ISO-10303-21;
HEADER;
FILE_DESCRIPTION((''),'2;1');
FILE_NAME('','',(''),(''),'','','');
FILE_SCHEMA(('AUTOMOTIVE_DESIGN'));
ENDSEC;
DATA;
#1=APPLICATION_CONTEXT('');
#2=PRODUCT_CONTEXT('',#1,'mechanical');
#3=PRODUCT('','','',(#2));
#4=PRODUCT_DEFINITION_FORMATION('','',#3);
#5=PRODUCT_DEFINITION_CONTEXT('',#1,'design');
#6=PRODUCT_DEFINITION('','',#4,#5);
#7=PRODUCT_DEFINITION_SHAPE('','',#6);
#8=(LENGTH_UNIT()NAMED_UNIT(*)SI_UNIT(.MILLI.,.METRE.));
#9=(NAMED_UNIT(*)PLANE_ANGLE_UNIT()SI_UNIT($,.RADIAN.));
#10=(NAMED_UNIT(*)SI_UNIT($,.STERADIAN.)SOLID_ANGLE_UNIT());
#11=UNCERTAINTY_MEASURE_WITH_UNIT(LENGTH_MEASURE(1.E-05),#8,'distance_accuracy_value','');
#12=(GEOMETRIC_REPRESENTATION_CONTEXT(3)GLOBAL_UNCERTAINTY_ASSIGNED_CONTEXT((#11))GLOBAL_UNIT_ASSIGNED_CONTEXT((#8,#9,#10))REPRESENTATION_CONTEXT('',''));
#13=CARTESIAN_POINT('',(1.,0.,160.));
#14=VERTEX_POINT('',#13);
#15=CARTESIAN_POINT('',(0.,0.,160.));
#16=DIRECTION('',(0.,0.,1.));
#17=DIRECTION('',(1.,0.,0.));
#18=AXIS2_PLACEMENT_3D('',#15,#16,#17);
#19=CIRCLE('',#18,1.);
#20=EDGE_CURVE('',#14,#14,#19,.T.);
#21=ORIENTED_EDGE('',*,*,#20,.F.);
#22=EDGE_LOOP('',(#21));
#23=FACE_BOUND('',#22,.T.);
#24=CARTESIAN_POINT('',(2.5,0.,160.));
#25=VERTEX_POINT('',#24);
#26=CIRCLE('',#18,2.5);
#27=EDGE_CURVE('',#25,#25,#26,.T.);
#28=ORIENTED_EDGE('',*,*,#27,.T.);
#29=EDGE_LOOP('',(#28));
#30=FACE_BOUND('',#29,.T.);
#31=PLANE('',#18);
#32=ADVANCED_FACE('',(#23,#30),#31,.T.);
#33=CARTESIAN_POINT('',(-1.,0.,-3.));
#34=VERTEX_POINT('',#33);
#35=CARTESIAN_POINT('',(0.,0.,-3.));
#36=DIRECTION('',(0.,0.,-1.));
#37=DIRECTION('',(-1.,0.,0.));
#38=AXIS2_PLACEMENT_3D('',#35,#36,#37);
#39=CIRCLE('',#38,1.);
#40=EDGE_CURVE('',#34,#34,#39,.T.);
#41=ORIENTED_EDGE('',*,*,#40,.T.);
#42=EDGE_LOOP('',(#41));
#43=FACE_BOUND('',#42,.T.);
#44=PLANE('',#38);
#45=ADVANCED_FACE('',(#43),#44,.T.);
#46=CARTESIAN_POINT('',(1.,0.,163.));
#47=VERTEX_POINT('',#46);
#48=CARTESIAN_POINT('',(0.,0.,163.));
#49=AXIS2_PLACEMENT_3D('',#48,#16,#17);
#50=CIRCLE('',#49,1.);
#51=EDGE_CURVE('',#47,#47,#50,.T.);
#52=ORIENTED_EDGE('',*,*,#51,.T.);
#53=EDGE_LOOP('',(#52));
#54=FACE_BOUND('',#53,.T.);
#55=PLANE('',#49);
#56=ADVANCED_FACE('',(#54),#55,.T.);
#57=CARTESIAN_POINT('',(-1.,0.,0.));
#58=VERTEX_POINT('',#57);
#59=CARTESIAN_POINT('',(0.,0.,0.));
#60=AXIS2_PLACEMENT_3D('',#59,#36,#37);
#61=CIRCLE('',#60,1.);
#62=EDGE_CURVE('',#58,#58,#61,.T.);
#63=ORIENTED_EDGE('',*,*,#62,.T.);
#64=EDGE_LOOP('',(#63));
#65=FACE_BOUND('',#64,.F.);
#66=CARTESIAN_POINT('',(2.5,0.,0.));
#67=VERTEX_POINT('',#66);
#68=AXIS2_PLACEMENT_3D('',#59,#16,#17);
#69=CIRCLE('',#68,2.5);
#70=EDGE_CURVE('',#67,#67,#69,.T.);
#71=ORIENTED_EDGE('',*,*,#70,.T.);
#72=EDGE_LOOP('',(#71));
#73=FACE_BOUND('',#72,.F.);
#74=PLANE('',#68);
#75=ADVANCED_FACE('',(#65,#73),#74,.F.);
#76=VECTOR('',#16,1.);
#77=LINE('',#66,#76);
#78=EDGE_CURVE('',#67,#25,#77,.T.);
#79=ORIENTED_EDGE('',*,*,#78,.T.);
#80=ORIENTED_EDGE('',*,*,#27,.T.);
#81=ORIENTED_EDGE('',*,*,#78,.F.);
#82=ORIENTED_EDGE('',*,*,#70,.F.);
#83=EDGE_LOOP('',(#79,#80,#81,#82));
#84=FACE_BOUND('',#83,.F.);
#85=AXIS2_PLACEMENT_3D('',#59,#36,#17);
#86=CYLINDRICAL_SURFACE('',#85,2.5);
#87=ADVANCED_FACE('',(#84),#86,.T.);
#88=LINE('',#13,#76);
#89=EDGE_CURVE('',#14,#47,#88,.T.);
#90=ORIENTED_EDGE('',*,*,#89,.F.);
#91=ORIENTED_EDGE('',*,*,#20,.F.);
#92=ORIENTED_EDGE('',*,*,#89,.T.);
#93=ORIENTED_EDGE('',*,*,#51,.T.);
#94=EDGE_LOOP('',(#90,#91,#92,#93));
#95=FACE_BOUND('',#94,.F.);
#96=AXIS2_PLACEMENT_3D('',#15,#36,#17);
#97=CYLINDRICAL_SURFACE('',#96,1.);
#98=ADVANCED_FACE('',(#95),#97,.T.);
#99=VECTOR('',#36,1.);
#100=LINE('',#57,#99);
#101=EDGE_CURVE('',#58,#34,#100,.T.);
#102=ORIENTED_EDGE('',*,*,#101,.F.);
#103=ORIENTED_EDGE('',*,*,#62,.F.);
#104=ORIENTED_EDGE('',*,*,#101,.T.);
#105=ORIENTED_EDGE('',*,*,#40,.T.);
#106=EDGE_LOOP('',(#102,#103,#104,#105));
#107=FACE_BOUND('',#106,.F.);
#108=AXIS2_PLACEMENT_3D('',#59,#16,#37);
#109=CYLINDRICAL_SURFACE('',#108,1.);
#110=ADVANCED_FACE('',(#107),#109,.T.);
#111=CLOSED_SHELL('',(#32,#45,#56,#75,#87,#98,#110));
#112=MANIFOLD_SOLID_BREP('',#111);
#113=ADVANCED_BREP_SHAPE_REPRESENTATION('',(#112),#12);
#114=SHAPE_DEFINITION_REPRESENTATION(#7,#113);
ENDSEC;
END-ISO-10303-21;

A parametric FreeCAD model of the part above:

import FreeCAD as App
import Part
import Sketcher
Q = App.Units.Quantity

doc = App.newDocument("Part")
params = doc.addObject("Spreadsheet::Sheet", "Params")
for row, (alias, value) in enumerate([
    ("sketch1_diameter", "5 mm"),
    ("pad1_length", "160 mm"),
    ("sketch2_diameter", "2 mm"),
    ("pad2_length", "3 mm"),
    ("sketch3_diameter", "2 mm"),
    ("pad3_length", "3 mm"),
], start=1):
    params.set(f"A{row}", alias)
    params.set(f"B{row}", "=" + value)
    params.setAlias(f"B{row}", alias)

body = doc.addObject("PartDesign::Body", "Body")

sketch1 = body.newObject("Sketcher::SketchObject", "Sketch")
sketch1.AttachmentSupport = (doc.getObject("XY_Plane"), [""])
sketch1.MapMode = "FlatFace"
sketch1.addGeometry(Part.Circle(App.Vector(0, 0, 0), App.Vector(0, 0, 1), 2.5), False)
sketch1.addConstraint(Sketcher.Constraint("Coincident", 0, 3, -1, 1))
sketch1.addConstraint(Sketcher.Constraint("Diameter", 0, Q("5 mm")))
sketch1.setExpression("Constraints[1]", "Params.sketch1_diameter")
pad1 = body.newObject("PartDesign::Pad", "Pad")
pad1.Profile = sketch1
pad1.setExpression("Length", "Params.pad1_length")

sketch2 = body.newObject("Sketcher::SketchObject", "Sketch001")
sketch2.AttachmentSupport = (doc.getObject("XY_Plane"), [""])
sketch2.MapMode = "FlatFace"
sketch2.AttachmentOffset = App.Placement(App.Vector(0, 0, 160), App.Rotation())
sketch2.addGeometry(Part.Circle(App.Vector(0, 0, 0), App.Vector(0, 0, 1), 1), False)
sketch2.addConstraint(Sketcher.Constraint("Coincident", 0, 3, -1, 1))
sketch2.addConstraint(Sketcher.Constraint("Diameter", 0, Q("2 mm")))
sketch2.setExpression("Constraints[1]", "Params.sketch2_diameter")
pad2 = body.newObject("PartDesign::Pad", "Pad001")
pad2.Profile = sketch2
pad2.setExpression("Length", "Params.pad2_length")

sketch3 = body.newObject("Sketcher::SketchObject", "Sketch002")
sketch3.AttachmentSupport = (doc.getObject("XY_Plane"), [""])
sketch3.MapMode = "FlatFace"
sketch3.addGeometry(Part.Circle(App.Vector(0, 0, 0), App.Vector(0, 0, 1), 1), False)
sketch3.addConstraint(Sketcher.Constraint("Coincident", 0, 3, -1, 1))
sketch3.addConstraint(Sketcher.Constraint("Diameter", 0, Q("2 mm")))
sketch3.setExpression("Constraints[1]", "Params.sketch3_diameter")
pad3 = body.newObject("PartDesign::Pad", "Pad002")
pad3.Profile = sketch3
pad3.setExpression("Length", "Params.pad3_length")
pad3.Reversed = True

doc.recompute()
